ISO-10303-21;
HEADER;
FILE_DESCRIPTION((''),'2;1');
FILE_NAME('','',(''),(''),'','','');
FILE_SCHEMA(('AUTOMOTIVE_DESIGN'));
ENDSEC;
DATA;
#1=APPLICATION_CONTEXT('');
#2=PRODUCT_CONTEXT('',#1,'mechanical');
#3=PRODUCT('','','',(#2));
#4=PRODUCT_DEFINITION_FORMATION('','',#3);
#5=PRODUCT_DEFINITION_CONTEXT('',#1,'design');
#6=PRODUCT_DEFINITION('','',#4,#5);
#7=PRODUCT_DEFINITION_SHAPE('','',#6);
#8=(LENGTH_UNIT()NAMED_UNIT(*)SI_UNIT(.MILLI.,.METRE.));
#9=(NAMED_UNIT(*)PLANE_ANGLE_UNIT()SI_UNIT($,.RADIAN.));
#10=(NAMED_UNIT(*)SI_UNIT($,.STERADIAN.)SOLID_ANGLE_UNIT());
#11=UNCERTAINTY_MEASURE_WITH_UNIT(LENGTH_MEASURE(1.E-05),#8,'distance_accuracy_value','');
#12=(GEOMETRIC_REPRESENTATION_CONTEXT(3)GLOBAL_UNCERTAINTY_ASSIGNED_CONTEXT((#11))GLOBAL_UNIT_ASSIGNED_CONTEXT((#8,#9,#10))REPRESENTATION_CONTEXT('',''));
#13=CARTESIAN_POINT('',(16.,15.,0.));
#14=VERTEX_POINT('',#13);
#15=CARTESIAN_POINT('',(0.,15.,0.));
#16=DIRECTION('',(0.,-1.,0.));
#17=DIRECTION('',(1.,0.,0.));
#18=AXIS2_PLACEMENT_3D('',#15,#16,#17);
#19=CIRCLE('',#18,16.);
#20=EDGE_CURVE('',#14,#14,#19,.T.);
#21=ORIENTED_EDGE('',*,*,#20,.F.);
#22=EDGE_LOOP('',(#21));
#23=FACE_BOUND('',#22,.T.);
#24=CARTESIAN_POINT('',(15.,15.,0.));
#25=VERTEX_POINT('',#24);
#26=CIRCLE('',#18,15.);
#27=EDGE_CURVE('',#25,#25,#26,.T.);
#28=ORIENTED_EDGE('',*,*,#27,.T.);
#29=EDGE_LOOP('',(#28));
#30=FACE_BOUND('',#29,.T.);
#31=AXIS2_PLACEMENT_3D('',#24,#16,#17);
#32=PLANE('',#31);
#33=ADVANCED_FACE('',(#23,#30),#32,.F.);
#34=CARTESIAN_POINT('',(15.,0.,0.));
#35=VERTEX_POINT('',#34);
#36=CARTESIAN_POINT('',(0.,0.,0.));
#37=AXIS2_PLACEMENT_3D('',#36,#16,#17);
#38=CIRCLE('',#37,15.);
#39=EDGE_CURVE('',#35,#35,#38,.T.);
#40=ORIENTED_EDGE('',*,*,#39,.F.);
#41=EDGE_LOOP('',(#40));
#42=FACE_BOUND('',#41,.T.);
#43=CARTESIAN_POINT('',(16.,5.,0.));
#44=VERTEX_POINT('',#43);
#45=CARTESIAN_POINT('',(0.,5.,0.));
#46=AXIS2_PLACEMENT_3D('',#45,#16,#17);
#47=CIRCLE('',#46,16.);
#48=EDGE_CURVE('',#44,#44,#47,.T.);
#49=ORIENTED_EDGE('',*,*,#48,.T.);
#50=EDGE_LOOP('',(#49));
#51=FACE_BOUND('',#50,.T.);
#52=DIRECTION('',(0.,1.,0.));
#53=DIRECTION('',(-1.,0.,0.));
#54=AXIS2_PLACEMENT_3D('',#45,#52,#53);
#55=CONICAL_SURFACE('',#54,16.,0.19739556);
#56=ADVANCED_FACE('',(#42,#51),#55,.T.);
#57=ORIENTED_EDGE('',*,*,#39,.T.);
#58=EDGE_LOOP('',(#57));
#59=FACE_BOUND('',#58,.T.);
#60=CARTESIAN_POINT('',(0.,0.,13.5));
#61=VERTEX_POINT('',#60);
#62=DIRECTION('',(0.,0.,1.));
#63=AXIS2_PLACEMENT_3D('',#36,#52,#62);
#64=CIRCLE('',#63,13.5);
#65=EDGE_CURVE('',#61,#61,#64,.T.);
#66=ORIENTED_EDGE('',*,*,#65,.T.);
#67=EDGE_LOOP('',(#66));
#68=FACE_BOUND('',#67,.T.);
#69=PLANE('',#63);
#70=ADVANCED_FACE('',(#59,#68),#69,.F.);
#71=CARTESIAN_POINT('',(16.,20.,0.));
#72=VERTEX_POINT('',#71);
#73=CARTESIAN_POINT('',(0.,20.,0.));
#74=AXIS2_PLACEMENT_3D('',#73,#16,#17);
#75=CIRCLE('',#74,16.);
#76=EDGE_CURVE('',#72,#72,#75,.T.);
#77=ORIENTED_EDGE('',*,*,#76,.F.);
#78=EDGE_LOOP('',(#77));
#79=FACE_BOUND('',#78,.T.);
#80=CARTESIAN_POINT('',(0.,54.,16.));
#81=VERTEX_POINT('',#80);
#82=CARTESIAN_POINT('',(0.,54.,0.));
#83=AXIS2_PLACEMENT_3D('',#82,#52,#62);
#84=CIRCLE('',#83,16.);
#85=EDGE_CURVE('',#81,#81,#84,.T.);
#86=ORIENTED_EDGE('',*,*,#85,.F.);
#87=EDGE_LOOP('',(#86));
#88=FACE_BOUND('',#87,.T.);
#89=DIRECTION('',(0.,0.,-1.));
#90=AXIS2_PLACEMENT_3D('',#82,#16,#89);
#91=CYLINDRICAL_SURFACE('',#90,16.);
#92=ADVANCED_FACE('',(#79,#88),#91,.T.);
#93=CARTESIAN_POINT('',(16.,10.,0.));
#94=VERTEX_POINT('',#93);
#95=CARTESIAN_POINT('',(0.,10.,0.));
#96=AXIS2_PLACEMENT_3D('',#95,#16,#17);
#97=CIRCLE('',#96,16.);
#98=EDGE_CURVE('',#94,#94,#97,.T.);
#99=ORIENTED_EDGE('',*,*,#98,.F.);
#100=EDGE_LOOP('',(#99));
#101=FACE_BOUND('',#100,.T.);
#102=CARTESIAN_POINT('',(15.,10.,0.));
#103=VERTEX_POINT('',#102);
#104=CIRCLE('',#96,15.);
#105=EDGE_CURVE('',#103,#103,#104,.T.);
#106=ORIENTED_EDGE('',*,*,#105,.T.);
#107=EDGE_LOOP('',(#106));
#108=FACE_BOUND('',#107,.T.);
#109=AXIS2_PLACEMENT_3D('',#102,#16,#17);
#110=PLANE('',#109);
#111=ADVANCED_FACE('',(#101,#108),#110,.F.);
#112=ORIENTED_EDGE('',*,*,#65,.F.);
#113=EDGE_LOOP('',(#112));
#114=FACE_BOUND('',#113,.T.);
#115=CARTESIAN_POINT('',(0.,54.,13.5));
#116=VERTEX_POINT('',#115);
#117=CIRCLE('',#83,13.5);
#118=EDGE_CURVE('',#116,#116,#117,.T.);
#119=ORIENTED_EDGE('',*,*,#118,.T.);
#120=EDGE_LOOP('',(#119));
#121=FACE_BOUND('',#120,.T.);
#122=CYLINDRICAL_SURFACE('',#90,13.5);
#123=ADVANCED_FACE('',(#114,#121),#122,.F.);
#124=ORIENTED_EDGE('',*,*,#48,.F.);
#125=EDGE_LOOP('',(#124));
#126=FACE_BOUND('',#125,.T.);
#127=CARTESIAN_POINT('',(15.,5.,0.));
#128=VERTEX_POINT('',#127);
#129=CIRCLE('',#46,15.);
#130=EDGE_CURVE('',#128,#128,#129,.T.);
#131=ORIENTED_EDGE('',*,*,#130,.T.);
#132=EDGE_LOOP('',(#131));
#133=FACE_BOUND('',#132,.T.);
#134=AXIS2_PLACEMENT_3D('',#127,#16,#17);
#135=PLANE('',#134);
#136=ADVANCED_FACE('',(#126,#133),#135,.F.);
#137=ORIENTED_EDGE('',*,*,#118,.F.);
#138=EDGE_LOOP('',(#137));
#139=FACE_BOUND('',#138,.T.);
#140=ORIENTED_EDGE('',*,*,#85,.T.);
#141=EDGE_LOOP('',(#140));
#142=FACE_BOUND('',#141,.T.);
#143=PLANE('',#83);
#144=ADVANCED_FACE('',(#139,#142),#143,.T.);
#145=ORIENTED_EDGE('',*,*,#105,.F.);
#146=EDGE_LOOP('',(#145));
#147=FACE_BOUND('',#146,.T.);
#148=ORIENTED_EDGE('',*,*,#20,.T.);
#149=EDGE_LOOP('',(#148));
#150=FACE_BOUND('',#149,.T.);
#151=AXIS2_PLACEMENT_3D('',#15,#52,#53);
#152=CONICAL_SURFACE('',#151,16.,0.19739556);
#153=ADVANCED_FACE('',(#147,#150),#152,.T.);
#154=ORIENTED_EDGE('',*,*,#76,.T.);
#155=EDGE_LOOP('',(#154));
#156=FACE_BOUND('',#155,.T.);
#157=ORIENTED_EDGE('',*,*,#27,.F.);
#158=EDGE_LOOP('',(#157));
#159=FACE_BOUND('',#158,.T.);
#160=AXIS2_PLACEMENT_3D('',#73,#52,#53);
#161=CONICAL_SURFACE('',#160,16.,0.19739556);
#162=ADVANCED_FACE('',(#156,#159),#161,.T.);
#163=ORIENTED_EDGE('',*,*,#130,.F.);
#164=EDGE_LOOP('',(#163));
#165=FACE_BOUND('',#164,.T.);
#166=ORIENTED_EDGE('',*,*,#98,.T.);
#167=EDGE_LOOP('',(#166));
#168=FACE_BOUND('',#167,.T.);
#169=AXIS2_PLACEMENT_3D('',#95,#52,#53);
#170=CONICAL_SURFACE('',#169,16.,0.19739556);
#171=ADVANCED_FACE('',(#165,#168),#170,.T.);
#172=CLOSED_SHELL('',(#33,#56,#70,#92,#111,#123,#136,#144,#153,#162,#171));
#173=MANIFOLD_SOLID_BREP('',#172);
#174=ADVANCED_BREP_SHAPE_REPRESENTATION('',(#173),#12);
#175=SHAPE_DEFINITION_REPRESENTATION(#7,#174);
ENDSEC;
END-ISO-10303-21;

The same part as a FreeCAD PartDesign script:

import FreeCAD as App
import Part
import Sketcher

V = App.Vector

doc = App.newDocument("Part")
params = doc.addObject("Spreadsheet::Sheet", "Params")
for row, (alias, value) in enumerate([
    ("sketch1_diameter", "32 mm"),
    ("sketch1_diameter2", "27 mm"),
    ("pad1_length", "54 mm"),
    ("sketch2_width", "1 mm"),
    ("sketch2_height", "5 mm"),
    ("groove_angle", "360 deg"),
], start=1):
    params.set(f"A{row}", alias)
    params.set(f"B{row}", "=" + value)
    params.setAlias(f"B{row}", alias)

body = doc.addObject("PartDesign::Body", "Body")

# Sketch on XZ plane
sketch1 = body.newObject("Sketcher::SketchObject", "Sketch")
sketch1.AttachmentSupport = (doc.getObject("XZ_Plane"), [""])
sketch1.MapMode = "FlatFace"
sketch1.addGeometry([
    Part.Circle(V(0, 0, 0), V(0, 0, 1), 16),
    Part.Circle(V(0, 0, 0), V(0, 0, 1), 14),
], False)
sketch1.addConstraint([
    Sketcher.Constraint("Coincident", 0, 3, -1, 1),
    Sketcher.Constraint("Coincident", 1, 3, -1, 1),
    Sketcher.Constraint("Diameter", 0, 32.0),
    Sketcher.Constraint("Diameter", 1, 27.0),
])
sketch1.setExpression("Constraints[2]", "Params.sketch1_diameter")
sketch1.setExpression("Constraints[3]", "Params.sketch1_diameter2")
pad1 = body.newObject("PartDesign::Pad", "Pad")
pad1.Profile = sketch1
pad1.setExpression("Length", "Params.pad1_length")
pad1.Reversed = True

# Sketch on XY plane
sketch2 = body.newObject("Sketcher::SketchObject", "Sketch001")
sketch2.AttachmentSupport = (doc.getObject("XY_Plane"), [""])
sketch2.MapMode = "FlatFace"
sketch2.addGeometry([
    Part.LineSegment(V(16, 15, 0), V(16, 20, 0)),  # 0
    Part.LineSegment(V(16, 20, 0), V(15, 15, 0)),  # 1
    Part.LineSegment(V(15, 15, 0), V(16, 15, 0)),  # 2
    Part.LineSegment(V(16, 0, 0), V(16, 5, 0)),  # 3
    Part.LineSegment(V(16, 5, 0), V(15, 0, 0)),  # 4
    Part.LineSegment(V(15, 0, 0), V(16, 0, 0)),  # 5
    Part.LineSegment(V(16, 5, 0), V(16, 10, 0)),  # 6
    Part.LineSegment(V(16, 10, 0), V(15, 5, 0)),  # 7
    Part.LineSegment(V(15, 5, 0), V(16, 5, 0)),  # 8
    Part.LineSegment(V(16, 10, 0), V(16, 15, 0)),  # 9
    Part.LineSegment(V(16, 15, 0), V(15, 10, 0)),  # 10
    Part.LineSegment(V(15, 10, 0), V(16, 10, 0)),  # 11
], False)
sketch2.addConstraint([
    Sketcher.Constraint("Coincident", 0, 2, 1, 1),
    Sketcher.Constraint("Coincident", 1, 2, 2, 1),
    Sketcher.Constraint("Coincident", 2, 2, 0, 1),
    Sketcher.Constraint("Coincident", 3, 2, 4, 1),
    Sketcher.Constraint("Coincident", 4, 2, 5, 1),
    Sketcher.Constraint("Coincident", 5, 2, 3, 1),
    Sketcher.Constraint("Coincident", 6, 2, 7, 1),
    Sketcher.Constraint("Coincident", 7, 2, 8, 1),
    Sketcher.Constraint("Coincident", 8, 2, 6, 1),
    Sketcher.Constraint("Coincident", 9, 2, 10, 1),
    Sketcher.Constraint("Coincident", 10, 2, 11, 1),
    Sketcher.Constraint("Coincident", 11, 2, 9, 1),
    Sketcher.Constraint("Vertical", 0),
    Sketcher.Constraint("Horizontal", 2),
    Sketcher.Constraint("Vertical", 3),
    Sketcher.Constraint("Horizontal", 5),
    Sketcher.Constraint("Vertical", 6),
    Sketcher.Constraint("Horizontal", 8),
    Sketcher.Constraint("Vertical", 9),
    Sketcher.Constraint("Horizontal", 11),
    Sketcher.Constraint("Coincident", 8, 2, 3, 2),
    Sketcher.Constraint("Coincident", 9, 2, 2, 2),
    Sketcher.Constraint("Coincident", 11, 2, 6, 2),
    Sketcher.Constraint("PointOnObject", 4, 2, -1),
    Sketcher.Constraint("Parallel", 1, 4),
    Sketcher.Constraint("Parallel", 4, 7),
    Sketcher.Constraint("Parallel", 7, 10),
    Sketcher.Constraint("Vertical", 1, 2, 4, 2),
    Sketcher.Constraint("Vertical", 4, 2, 7, 2),
    Sketcher.Constraint("Vertical", 7, 2, 10, 2),
    Sketcher.Constraint("DistanceX", 2, 1, 2, 2, 1.0),
    Sketcher.Constraint("DistanceY", 0, 1, 0, 2, 5.0),
    Sketcher.Constraint("DistanceX", -1, 1, 0, 2, 16.0),
])
sketch2.setExpression("Constraints[30]", "Params.sketch2_width")
sketch2.setExpression("Constraints[31]", "Params.sketch2_height")
groove = body.newObject("PartDesign::Groove", "Groove")
groove.Profile = sketch2
groove.ReferenceAxis = (sketch2, ["V_Axis"])
groove.setExpression("Angle", "Params.groove_angle")

doc.recompute()
